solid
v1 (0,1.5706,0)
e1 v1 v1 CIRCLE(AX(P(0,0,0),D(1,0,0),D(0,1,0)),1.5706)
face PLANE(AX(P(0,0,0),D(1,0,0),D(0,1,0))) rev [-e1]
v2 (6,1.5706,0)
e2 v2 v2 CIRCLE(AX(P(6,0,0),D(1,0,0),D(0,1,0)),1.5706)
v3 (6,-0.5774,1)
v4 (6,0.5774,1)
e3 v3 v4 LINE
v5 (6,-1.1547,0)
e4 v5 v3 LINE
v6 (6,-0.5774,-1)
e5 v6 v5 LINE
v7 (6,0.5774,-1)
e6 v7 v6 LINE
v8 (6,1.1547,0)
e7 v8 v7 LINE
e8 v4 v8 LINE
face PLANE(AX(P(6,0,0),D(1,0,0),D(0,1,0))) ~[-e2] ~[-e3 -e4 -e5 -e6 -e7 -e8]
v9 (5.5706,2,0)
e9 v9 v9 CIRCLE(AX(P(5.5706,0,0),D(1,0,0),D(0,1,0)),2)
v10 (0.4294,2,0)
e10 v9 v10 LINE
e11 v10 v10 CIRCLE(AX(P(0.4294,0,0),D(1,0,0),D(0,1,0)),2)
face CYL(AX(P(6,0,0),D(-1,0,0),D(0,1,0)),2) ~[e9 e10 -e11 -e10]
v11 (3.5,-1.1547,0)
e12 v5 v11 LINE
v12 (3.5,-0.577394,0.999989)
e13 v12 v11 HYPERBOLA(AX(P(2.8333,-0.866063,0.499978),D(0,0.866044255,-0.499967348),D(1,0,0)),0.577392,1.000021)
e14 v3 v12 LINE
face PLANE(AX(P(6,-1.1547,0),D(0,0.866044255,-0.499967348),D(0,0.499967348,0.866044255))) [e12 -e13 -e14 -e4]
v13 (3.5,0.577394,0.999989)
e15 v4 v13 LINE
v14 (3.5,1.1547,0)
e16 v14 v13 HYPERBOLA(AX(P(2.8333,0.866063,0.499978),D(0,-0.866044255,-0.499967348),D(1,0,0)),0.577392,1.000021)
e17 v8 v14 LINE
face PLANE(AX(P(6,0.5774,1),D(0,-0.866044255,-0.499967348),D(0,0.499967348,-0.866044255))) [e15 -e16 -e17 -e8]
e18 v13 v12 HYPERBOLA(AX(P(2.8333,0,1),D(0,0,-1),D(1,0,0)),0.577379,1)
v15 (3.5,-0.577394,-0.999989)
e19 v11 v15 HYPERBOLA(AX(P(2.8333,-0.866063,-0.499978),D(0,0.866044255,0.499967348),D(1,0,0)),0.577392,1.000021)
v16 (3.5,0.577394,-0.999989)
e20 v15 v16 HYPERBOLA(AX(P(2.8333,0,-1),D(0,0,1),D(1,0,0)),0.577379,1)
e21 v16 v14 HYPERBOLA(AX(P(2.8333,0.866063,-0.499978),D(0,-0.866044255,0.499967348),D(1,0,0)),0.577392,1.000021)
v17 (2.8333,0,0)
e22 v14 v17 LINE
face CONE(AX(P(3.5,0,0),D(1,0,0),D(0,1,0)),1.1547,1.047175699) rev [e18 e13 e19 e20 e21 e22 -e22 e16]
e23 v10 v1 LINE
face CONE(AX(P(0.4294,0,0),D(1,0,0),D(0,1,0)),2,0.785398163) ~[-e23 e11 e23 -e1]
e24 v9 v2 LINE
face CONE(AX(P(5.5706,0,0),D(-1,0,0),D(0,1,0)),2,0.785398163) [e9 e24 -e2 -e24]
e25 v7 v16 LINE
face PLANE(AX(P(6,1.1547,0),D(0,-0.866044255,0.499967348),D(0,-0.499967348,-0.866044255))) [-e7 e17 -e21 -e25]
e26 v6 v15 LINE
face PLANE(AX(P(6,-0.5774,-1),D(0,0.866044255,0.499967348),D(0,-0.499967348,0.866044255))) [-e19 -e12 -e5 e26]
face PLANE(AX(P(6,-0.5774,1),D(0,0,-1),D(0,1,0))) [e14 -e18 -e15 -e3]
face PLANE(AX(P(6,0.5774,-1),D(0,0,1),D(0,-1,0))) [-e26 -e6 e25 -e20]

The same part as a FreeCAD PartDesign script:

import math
import FreeCAD as App
import Part
import Sketcher

V = App.Vector


def edges_at(feature, points):
    """Names of the edges that pass closest to the given points."""
    edges = feature.Shape.Edges
    near = lambda p: min(range(len(edges)), key=lambda i: edges[i].distToShape(Part.Vertex(*p))[0])
    return sorted({f"Edge{near(p) + 1}" for p in points})

doc = App.newDocument("Part")
body = doc.addObject("PartDesign::Body", "Body")

# Sketch on XY plane
sketch1 = body.newObject("Sketcher::SketchObject", "Sketch")
sketch1.AttachmentSupport = (doc.getObject("XY_Plane"), [""])
sketch1.MapMode = "FlatFace"
sketch1.addGeometry(Part.LineSegment(V(0, 2, 0), V(0, 0, 0)), False)
sketch1.addGeometry(Part.LineSegment(V(0, 0, 0), V(2.8, 0, 0)), False)
sketch1.addGeometry(Part.LineSegment(V(2.8, 0, 0), V(3.5, 1.2, 0)), False)
sketch1.addGeometry(Part.LineSegment(V(3.5, 1.2, 0), V(6, 1.2, 0)), False)
sketch1.addGeometry(Part.LineSegment(V(6, 1.2, 0), V(6, 2, 0)), False)
sketch1.addGeometry(Part.LineSegment(V(6, 2, 0), V(0, 2, 0)), False)
sketch1.addConstraint(Sketcher.Constraint("Coincident", 0, 2, 1, 1))
sketch1.addConstraint(Sketcher.Constraint("Coincident", 1, 2, 2, 1))
sketch1.addConstraint(Sketcher.Constraint("Coincident", 2, 2, 3, 1))
sketch1.addConstraint(Sketcher.Constraint("Coincident", 3, 2, 4, 1))
sketch1.addConstraint(Sketcher.Constraint("Coincident", 4, 2, 5, 1))
sketch1.addConstraint(Sketcher.Constraint("Coincident", 5, 2, 0, 1))
sketch1.addConstraint(Sketcher.Constraint("Vertical", 0))
sketch1.addConstraint(Sketcher.Constraint("Horizontal", 1))
sketch1.addConstraint(Sketcher.Constraint("Horizontal", 3))
sketch1.addConstraint(Sketcher.Constraint("Vertical", 4))
sketch1.addConstraint(Sketcher.Constraint("Horizontal", 5))
sketch1.addConstraint(Sketcher.Constraint("Coincident", 0, 2, -1, 1))
sketch1.addConstraint(Sketcher.Constraint("DistanceX", 5, 2, 5, 1, 6.0))
sketch1.addConstraint(Sketcher.Constraint("DistanceX", 3, 1, 3, 2, 2.5))
sketch1.addConstraint(Sketcher.Constraint("DistanceY", 0, 2, 0, 1, 2.0))
sketch1.addConstraint(Sketcher.Constraint("DistanceX", 1, 1, 1, 2, 2.8333))
sketch1.addConstraint(Sketcher.Constraint("DistanceY", 4, 1, 4, 2, 0.8453))
revolution = body.newObject("PartDesign::Revolution", "Revolution")
revolution.Profile = sketch1
revolution.ReferenceAxis = (sketch1, ["H_Axis"])
revolution.Angle = 360

# Sketch on YZ plane
sketch2 = body.newObject("Sketcher::SketchObject", "Sketch001")
sketch2.AttachmentSupport = (doc.getObject("YZ_Plane"), [""])
sketch2.MapMode = "FlatFace"
sketch2.AttachmentOffset = App.Placement(V(0, 0, 6), App.Rotation())
sketch2.addGeometry(Part.LineSegment(V(0.6, 1, 0), V(1.2, 0, 0)), False)
sketch2.addGeometry(Part.ArcOfCircle(Part.Circle(V(0, 0, 0), V(0, 0, 1), 1.2), math.radians(0), math.radians(60)), False)
sketch2.addGeometry(Part.ArcOfCircle(Part.Circle(V(0, 0, 0), V(0, 0, 1), 1.2), math.radians(-60), math.radians(0)), False)
sketch2.addGeometry(Part.LineSegment(V(1.2, 0, 0), V(0.6, -1, 0)), False)
sketch2.addGeometry(Part.LineSegment(V(-0.6, 1, 0), V(0.6, 1, 0)), False)
sketch2.addGeometry(Part.ArcOfCircle(Part.Circle(V(0, 0, 0), V(0, 0, 1), 1.2), math.radians(60), math.radians(120)), False)
sketch2.addGeometry(Part.ArcOfCircle(Part.Circle(V(0, 0, 0), V(0, 0, 1), 1.2), math.radians(-120), math.radians(-60)), False)
sketch2.addGeometry(Part.LineSegment(V(-0.6, -1, 0), V(0.6, -1, 0)), False)
sketch2.addGeometry(Part.LineSegment(V(-1.2, 0, 0), V(-0.6, 1, 0)), False)
sketch2.addGeometry(Part.ArcOfCircle(Part.Circle(V(0, 0, 0), V(0, 0, 1), 1.2), math.radians(120), math.radians(180)), False)
sketch2.addGeometry(Part.ArcOfCircle(Part.Circle(V(0, 0, 0), V(0, 0, 1), 1.2), math.radians(180), math.radians(240)), False)
sketch2.addGeometry(Part.LineSegment(V(-1.2, 0, 0), V(-0.6, -1, 0)), False)
sketch2.addConstraint(Sketcher.Constraint("Coincident", 0, 1, 1, 2))
sketch2.addConstraint(Sketcher.Constraint("Coincident", 1, 1, 0, 2))
sketch2.addConstraint(Sketcher.Constraint("Coincident", 2, 1, 3, 2))
sketch2.addConstraint(Sketcher.Constraint("Coincident", 3, 1, 2, 2))
sketch2.addConstraint(Sketcher.Constraint("Coincident", 4, 1, 5, 2))
sketch2.addConstraint(Sketcher.Constraint("Coincident", 5, 1, 4, 2))
sketch2.addConstraint(Sketcher.Constraint("Coincident", 6, 1, 7, 1))
sketch2.addConstraint(Sketcher.Constraint("Coincident", 7, 2, 6, 2))
sketch2.addConstraint(Sketcher.Constraint("Coincident", 8, 1, 9, 2))
sketch2.addConstraint(Sketcher.Constraint("Coincident", 9, 1, 8, 2))
sketch2.addConstraint(Sketcher.Constraint("Coincident", 10, 1, 11, 1))
sketch2.addConstraint(Sketcher.Constraint("Coincident", 11, 2, 10, 2))
sketch2.addConstraint(Sketcher.Constraint("Horizontal", 4))
sketch2.addConstraint(Sketcher.Constraint("Horizontal", 7))
sketch2.addConstraint(Sketcher.Constraint("Coincident", 1, 3, -1, 1))
sketch2.addConstraint(Sketcher.Constraint("Coincident", 2, 3, -1, 1))
sketch2.addConstraint(Sketcher.Constraint("Coincident", 5, 3, -1, 1))
sketch2.addConstraint(Sketcher.Constraint("Coincident", 6, 3, -1, 1))
sketch2.addConstraint(Sketcher.Constraint("Coincident", 9, 3, -1, 1))
sketch2.addConstraint(Sketcher.Constraint("Coincident", 10, 3, -1, 1))
sketch2.addConstraint(Sketcher.Constraint("Coincident", 3, 1, 1, 1))
sketch2.addConstraint(Sketcher.Constraint("Coincident", 5, 1, 0, 1))
sketch2.addConstraint(Sketcher.Constraint("Coincident", 7, 2, 2, 1))
sketch2.addConstraint(Sketcher.Constraint("Coincident", 9, 1, 4, 1))
sketch2.addConstraint(Sketcher.Constraint("Coincident", 10, 1, 8, 1))
sketch2.addConstraint(Sketcher.Constraint("PointOnObject", 1, 1, -1))
sketch2.addConstraint(Sketcher.Constraint("PointOnObject", 8, 1, -1))
sketch2.addConstraint(Sketcher.Constraint("Parallel", 3, 8))
sketch2.addConstraint(Sketcher.Constraint("Parallel", 0, 11))
sketch2.addConstraint(Sketcher.Constraint("DistanceY", -1, 1, 0, 1, 1.0))
sketch2.addConstraint(Sketcher.Constraint("Radius", 1, 1.1547))
pad1 = body.newObject("PartDesign::Pad", "Pad")
pad1.Profile = sketch2
pad1.Type = "UpToFirst"
pad1.Reversed = True
doc.recompute()

chamfer = body.newObject("PartDesign::Chamfer", "Chamfer")
chamfer.Base = (pad1, edges_at(pad1, [(6, -2, 0)]))
chamfer.Size = 0.4294
doc.recompute()

chamfer2 = body.newObject("PartDesign::Chamfer", "Chamfer001")
chamfer2.Base = (chamfer, edges_at(chamfer, [(0, -2, 0)]))
chamfer2.Size = 0.4294

doc.recompute()
